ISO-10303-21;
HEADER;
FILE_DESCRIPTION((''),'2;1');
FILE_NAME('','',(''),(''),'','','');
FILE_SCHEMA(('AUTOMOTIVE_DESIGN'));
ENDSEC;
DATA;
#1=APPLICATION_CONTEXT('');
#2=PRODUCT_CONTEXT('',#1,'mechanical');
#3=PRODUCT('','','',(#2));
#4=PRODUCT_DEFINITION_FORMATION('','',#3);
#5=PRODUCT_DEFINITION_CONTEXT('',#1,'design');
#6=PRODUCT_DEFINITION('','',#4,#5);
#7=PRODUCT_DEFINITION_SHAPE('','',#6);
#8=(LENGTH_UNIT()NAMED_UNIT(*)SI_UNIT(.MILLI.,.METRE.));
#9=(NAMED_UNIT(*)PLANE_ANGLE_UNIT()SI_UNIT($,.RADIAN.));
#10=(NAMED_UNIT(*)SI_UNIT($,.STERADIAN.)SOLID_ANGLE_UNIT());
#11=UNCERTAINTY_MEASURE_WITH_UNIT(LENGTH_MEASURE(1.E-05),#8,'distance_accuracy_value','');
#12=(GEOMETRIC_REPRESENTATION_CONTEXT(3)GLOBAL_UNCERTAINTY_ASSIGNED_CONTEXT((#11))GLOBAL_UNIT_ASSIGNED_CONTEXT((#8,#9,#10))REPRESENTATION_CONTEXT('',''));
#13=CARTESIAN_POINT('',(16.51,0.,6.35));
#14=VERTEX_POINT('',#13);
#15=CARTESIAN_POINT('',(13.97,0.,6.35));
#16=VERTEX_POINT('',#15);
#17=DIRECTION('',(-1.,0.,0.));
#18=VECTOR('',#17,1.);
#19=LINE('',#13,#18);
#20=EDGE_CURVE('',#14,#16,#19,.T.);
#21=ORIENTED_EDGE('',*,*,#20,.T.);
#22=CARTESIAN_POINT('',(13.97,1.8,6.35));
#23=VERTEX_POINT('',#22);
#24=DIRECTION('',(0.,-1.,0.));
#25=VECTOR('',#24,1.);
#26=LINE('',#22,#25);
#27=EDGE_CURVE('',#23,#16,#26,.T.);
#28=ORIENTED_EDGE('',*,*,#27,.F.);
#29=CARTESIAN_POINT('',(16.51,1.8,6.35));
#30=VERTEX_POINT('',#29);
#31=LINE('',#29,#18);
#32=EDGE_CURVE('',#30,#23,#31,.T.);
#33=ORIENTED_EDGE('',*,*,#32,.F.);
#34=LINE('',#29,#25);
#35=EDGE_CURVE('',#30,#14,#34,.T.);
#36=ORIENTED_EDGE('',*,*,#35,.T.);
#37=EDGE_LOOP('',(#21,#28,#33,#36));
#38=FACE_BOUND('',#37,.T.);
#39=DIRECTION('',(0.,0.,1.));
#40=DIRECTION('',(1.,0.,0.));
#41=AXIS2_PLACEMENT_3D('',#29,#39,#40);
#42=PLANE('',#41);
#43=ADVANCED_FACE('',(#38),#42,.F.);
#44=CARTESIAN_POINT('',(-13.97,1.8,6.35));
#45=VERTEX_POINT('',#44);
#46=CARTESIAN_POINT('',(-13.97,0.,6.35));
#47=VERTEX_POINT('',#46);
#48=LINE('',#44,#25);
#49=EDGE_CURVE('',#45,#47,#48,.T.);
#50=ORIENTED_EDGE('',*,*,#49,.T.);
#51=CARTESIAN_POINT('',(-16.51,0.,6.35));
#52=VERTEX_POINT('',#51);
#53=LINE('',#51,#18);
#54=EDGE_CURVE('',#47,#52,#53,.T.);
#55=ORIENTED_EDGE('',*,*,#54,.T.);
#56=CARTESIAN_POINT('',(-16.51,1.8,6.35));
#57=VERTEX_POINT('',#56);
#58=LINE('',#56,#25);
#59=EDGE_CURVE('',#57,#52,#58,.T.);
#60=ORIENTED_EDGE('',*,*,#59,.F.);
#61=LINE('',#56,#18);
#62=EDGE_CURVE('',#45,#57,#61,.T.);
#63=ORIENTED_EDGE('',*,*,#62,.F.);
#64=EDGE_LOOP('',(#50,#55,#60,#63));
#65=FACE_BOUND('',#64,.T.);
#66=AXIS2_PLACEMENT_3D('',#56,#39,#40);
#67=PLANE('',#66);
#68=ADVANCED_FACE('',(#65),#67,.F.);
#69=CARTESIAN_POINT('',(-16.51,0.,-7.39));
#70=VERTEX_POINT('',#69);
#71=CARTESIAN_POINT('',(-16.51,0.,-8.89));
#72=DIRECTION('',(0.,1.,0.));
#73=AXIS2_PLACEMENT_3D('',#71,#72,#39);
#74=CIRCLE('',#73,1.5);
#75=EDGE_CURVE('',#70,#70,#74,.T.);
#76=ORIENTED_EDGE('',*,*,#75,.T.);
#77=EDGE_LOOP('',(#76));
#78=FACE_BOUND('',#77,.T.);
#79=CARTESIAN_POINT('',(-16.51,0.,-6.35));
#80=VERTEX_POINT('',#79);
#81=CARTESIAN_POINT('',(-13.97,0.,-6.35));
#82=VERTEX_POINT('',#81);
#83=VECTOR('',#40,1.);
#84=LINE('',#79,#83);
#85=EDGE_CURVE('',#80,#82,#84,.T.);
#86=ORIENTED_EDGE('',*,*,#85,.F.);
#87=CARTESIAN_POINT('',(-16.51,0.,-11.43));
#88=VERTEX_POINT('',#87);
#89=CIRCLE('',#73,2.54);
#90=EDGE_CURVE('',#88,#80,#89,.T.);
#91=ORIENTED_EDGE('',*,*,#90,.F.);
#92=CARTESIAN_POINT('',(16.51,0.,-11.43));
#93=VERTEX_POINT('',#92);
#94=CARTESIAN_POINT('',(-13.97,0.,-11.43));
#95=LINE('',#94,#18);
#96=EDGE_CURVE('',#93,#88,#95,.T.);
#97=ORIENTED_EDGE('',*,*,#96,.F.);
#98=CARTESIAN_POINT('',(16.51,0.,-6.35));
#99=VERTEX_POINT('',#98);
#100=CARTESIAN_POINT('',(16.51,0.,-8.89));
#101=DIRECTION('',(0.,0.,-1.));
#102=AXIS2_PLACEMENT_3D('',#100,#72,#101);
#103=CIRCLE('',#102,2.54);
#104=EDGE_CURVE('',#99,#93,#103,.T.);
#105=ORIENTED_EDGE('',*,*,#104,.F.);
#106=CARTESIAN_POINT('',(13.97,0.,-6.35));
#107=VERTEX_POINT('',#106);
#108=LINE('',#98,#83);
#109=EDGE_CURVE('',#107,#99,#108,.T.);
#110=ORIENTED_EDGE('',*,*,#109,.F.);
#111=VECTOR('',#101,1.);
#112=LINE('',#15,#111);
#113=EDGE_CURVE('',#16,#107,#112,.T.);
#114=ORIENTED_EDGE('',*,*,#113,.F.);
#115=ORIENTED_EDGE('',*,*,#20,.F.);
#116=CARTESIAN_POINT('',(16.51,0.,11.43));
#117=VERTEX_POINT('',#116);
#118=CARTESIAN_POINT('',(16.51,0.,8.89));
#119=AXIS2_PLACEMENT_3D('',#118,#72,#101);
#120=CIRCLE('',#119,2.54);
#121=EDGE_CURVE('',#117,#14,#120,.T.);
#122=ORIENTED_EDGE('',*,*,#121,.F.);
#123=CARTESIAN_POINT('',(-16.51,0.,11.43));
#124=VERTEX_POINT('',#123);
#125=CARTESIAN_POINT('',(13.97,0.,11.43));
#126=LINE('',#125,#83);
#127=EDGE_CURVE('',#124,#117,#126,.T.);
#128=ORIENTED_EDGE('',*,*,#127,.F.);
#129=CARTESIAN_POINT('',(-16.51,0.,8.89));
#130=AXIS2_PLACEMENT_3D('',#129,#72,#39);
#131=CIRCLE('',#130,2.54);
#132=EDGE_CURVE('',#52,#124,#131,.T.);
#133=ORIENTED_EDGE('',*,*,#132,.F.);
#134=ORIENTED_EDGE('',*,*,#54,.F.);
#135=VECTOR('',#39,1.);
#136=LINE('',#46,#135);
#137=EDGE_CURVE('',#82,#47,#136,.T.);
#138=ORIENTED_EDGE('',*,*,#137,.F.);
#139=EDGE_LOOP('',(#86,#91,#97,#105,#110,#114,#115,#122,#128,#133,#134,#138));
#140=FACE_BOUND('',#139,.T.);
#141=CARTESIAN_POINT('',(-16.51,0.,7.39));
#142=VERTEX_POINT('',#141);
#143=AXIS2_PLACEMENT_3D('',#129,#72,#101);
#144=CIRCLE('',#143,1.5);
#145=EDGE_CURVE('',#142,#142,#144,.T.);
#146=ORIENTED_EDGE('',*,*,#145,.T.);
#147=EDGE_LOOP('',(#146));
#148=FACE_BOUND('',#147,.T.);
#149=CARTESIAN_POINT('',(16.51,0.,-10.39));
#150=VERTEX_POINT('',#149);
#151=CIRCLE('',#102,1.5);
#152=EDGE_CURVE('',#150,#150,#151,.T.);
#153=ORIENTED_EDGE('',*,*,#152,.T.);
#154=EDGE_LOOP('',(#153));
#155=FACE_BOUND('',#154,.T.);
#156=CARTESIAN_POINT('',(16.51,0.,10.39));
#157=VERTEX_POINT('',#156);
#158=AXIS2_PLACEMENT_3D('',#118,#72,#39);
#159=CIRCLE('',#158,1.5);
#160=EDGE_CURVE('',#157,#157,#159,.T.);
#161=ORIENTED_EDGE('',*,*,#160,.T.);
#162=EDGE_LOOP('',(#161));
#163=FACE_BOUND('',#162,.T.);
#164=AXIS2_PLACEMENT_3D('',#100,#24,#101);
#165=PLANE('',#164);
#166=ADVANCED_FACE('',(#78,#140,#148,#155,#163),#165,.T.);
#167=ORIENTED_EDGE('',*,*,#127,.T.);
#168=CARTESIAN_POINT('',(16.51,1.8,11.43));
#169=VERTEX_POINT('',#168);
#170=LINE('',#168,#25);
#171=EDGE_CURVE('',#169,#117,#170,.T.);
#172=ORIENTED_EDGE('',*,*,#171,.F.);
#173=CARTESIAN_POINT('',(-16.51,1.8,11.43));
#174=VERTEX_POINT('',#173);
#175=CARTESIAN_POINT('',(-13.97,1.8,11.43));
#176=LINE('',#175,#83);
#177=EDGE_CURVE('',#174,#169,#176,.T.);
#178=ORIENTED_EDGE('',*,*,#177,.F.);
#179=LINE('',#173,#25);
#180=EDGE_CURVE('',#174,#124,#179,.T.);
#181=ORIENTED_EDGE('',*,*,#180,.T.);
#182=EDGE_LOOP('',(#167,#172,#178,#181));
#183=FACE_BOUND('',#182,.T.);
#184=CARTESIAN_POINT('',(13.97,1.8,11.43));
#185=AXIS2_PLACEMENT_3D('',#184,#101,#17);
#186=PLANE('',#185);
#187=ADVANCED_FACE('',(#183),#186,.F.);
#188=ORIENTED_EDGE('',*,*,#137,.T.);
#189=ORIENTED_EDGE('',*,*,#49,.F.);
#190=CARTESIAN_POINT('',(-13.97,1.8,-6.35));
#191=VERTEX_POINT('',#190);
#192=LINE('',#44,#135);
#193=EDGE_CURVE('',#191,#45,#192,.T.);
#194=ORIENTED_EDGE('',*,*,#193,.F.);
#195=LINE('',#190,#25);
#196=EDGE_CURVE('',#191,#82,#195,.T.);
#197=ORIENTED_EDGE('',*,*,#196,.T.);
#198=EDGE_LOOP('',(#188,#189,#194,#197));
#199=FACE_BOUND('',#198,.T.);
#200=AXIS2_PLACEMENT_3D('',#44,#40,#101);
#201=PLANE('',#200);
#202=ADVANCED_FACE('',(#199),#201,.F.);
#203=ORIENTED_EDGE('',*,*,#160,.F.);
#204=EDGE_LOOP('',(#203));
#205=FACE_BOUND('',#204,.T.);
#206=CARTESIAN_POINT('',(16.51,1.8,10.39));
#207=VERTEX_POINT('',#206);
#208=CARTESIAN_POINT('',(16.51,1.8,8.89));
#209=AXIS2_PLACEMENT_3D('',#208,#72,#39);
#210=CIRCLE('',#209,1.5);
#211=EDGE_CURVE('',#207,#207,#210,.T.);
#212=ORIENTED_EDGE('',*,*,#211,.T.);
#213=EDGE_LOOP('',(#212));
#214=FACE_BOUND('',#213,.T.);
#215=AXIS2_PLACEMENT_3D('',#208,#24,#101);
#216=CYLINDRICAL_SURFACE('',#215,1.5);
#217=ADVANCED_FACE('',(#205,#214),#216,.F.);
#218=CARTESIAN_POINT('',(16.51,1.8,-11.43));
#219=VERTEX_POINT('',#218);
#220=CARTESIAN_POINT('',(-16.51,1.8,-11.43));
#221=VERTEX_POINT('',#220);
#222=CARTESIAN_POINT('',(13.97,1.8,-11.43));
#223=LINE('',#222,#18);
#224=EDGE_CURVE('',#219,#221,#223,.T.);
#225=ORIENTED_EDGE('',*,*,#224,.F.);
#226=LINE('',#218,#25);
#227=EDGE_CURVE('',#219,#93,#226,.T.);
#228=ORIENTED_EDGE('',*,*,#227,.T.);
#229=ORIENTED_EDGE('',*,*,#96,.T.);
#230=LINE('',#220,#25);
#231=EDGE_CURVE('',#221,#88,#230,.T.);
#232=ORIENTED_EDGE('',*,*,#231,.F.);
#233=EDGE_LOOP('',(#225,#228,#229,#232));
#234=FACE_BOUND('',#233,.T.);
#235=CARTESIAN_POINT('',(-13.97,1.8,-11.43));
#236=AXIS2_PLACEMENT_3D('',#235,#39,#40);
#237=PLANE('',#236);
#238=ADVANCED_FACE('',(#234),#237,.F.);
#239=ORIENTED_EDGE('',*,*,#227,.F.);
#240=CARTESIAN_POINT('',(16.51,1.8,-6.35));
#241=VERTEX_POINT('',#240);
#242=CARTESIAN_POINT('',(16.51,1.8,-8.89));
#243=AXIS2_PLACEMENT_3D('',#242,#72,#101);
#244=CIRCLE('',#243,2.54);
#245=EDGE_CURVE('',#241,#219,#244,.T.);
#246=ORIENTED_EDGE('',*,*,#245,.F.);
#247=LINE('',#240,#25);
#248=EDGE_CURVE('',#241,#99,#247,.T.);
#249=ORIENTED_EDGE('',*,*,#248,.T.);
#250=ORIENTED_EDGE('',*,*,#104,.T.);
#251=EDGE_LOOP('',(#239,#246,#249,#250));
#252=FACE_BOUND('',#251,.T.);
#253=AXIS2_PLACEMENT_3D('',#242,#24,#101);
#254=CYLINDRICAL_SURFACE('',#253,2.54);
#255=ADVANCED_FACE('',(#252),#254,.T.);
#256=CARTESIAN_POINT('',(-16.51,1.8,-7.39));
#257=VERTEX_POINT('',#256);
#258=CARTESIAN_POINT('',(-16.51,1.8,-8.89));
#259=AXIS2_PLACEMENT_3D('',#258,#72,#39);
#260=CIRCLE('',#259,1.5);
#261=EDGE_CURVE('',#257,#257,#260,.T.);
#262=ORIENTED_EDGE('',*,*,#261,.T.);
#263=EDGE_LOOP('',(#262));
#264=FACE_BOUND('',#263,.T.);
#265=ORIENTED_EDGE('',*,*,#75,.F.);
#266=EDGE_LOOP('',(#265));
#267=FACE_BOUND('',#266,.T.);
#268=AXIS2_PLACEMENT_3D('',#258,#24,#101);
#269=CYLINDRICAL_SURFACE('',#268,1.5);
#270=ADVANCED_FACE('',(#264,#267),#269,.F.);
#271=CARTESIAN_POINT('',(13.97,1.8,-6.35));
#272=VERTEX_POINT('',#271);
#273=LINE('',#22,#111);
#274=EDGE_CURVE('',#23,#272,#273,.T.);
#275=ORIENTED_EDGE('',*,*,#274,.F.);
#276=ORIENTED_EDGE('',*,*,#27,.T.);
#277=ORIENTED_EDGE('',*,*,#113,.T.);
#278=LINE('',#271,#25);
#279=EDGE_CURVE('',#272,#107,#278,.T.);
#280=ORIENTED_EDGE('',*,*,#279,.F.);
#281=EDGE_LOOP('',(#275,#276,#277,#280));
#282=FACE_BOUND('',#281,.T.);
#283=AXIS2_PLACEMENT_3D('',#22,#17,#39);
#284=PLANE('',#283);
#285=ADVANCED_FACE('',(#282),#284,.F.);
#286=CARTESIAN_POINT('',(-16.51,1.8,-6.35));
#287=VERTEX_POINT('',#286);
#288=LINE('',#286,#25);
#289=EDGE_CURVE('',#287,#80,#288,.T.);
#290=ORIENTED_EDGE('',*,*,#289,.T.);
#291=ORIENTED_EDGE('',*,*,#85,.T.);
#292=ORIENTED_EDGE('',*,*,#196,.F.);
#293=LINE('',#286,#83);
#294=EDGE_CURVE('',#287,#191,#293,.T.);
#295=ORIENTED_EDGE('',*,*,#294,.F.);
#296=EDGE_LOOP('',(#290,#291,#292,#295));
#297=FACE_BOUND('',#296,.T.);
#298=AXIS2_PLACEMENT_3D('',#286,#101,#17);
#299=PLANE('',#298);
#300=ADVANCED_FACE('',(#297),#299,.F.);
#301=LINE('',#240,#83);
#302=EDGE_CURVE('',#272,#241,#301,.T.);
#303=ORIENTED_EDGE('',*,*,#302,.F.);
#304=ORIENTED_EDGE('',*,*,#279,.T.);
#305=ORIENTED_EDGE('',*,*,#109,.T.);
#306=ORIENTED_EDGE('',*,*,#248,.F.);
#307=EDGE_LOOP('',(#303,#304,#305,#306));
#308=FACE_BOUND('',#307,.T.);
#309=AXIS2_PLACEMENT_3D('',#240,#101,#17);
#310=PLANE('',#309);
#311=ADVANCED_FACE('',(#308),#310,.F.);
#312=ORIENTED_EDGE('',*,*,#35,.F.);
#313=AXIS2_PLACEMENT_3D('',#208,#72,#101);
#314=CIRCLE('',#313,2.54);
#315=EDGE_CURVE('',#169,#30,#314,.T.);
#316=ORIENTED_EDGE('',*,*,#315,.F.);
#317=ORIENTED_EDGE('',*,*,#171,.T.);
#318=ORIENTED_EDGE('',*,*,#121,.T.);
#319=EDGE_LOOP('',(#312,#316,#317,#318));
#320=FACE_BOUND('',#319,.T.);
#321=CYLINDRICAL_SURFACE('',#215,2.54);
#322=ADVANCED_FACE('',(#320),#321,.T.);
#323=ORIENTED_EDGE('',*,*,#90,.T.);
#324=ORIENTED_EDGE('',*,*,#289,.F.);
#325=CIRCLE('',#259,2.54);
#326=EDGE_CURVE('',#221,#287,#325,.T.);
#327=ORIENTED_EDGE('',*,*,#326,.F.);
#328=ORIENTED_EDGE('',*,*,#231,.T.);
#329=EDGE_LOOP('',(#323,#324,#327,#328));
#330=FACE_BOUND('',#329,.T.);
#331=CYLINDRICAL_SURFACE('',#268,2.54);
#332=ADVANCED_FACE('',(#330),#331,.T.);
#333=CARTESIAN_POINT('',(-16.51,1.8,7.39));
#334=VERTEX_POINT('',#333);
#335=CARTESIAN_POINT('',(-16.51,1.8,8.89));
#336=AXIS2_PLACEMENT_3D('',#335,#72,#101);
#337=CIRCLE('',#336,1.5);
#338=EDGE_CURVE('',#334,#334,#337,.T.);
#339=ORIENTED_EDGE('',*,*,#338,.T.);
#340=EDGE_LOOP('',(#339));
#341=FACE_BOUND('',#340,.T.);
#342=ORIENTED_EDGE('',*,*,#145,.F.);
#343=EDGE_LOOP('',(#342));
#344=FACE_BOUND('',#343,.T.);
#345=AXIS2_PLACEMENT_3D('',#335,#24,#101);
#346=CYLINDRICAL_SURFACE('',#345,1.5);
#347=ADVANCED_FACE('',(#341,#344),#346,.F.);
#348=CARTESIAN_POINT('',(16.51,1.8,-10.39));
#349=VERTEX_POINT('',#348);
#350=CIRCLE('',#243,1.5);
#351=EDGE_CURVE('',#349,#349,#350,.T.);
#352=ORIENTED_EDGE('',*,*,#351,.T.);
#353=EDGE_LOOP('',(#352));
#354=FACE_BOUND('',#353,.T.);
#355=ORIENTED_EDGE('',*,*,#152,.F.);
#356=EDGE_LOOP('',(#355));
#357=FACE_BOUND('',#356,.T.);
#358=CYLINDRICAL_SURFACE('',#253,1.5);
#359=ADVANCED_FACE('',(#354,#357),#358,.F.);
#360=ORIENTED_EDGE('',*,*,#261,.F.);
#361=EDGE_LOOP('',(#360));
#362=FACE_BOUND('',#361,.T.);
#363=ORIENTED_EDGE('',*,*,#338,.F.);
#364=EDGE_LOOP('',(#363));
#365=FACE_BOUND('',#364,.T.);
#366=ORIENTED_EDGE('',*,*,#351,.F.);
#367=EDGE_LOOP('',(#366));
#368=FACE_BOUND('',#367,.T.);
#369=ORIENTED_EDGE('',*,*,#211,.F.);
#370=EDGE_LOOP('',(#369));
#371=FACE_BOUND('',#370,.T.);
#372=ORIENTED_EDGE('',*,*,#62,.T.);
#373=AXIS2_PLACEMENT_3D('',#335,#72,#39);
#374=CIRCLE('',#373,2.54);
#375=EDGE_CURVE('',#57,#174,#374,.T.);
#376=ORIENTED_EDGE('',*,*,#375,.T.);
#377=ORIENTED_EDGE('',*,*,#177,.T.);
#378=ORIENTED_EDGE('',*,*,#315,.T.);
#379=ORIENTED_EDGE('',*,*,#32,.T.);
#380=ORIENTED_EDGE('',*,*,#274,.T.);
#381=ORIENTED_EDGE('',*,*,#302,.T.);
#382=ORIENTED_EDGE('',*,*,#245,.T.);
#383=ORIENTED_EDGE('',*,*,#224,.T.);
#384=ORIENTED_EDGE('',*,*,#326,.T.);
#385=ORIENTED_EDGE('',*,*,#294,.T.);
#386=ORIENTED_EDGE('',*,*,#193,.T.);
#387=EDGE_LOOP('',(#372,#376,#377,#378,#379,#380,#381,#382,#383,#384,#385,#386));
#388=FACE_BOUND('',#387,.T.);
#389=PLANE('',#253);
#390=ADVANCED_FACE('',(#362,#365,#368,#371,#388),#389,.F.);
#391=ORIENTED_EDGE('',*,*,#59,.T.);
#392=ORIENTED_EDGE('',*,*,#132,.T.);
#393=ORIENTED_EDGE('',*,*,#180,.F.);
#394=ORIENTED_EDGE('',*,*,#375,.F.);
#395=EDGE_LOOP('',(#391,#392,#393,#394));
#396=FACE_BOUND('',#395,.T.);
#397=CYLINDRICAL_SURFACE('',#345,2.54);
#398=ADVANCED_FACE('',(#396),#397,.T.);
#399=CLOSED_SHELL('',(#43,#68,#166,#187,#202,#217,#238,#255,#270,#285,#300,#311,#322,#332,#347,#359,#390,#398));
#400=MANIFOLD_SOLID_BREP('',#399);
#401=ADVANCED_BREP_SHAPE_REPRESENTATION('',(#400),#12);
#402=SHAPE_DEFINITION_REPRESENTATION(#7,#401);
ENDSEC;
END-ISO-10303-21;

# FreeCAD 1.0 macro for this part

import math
import FreeCAD as App
import Part
import Sketcher
from FreeCAD import Vector
Q = App.Units.Quantity

doc = App.newDocument("Part")
body = doc.addObject("PartDesign::Body", "Body")

# Sketch on XZ plane
sketch1 = doc.addObject("Sketcher::SketchObject", "Sketch")
body.addObject(sketch1)
sketch1.AttachmentSupport = (doc.XZ_Plane, [""])
sketch1.MapMode = "FlatFace"
sketch1.addGeometry(Part.ArcOfCircle(Part.Circle(Vector(-16.5, -8.9, 0), Vector(0, 0, 1), 2.5), math.radians(90), math.radians(270)), False)
sketch1.addGeometry(Part.LineSegment(Vector(-16.5, -6.3, 0), Vector(-14, -6.3, 0)), False)
sketch1.addGeometry(Part.LineSegment(Vector(-14, -6.3, 0), Vector(-14, 6.3, 0)), False)
sketch1.addGeometry(Part.LineSegment(Vector(-14, 6.3, 0), Vector(-16.5, 6.3, 0)), False)
sketch1.addGeometry(Part.ArcOfCircle(Part.Circle(Vector(-16.5, 8.9, 0), Vector(0, 0, 1), 2.5), math.radians(90), math.radians(270)), False)
sketch1.addGeometry(Part.LineSegment(Vector(-16.5, 11.4, 0), Vector(16.5, 11.4, 0)), False)
sketch1.addGeometry(Part.ArcOfCircle(Part.Circle(Vector(16.5, 8.9, 0), Vector(0, 0, 1), 2.5), math.radians(-90), math.radians(90)), False)
sketch1.addGeometry(Part.LineSegment(Vector(16.5, 6.3, 0), Vector(14, 6.3, 0)), False)
sketch1.addGeometry(Part.LineSegment(Vector(14, 6.3, 0), Vector(14, -6.3, 0)), False)
sketch1.addGeometry(Part.LineSegment(Vector(14, -6.3, 0), Vector(16.5, -6.3, 0)), False)
sketch1.addGeometry(Part.ArcOfCircle(Part.Circle(Vector(16.5, -8.9, 0), Vector(0, 0, 1), 2.5), math.radians(-90), math.radians(90)), False)
sketch1.addGeometry(Part.LineSegment(Vector(16.5, -11.4, 0), Vector(-16.5, -11.4, 0)), False)
sketch1.addGeometry(Part.Circle(Vector(-16.5, 8.9, 0), Vector(0, 0, 1), 1.5), False)
sketch1.addGeometry(Part.Circle(Vector(16.5, 8.9, 0), Vector(0, 0, 1), 1.5), False)
sketch1.addGeometry(Part.Circle(Vector(-16.5, -8.9, 0), Vector(0, 0, 1), 1.5), False)
sketch1.addGeometry(Part.Circle(Vector(16.5, -8.9, 0), Vector(0, 0, 1), 1.5), False)
sketch1.addConstraint(Sketcher.Constraint("Tangent", 0, 1, 1, 1))
sketch1.addConstraint(Sketcher.Constraint("Coincident", 1, 2, 2, 1))
sketch1.addConstraint(Sketcher.Constraint("Coincident", 2, 2, 3, 1))
sketch1.addConstraint(Sketcher.Constraint("Tangent", 3, 2, 4, 2))
sketch1.addConstraint(Sketcher.Constraint("Tangent", 4, 1, 5, 1))
sketch1.addConstraint(Sketcher.Constraint("Tangent", 5, 2, 6, 2))
sketch1.addConstraint(Sketcher.Constraint("Tangent", 6, 1, 7, 1))
sketch1.addConstraint(Sketcher.Constraint("Coincident", 7, 2, 8, 1))
sketch1.addConstraint(Sketcher.Constraint("Coincident", 8, 2, 9, 1))
sketch1.addConstraint(Sketcher.Constraint("Tangent", 9, 2, 10, 2))
sketch1.addConstraint(Sketcher.Constraint("Tangent", 10, 1, 11, 1))
sketch1.addConstraint(Sketcher.Constraint("Tangent", 11, 2, 0, 2))
sketch1.addConstraint(Sketcher.Constraint("Horizontal", 1))
sketch1.addConstraint(Sketcher.Constraint("Vertical", 2))
sketch1.addConstraint(Sketcher.Constraint("Horizontal", 3))
sketch1.addConstraint(Sketcher.Constraint("Horizontal", 5))
sketch1.addConstraint(Sketcher.Constraint("Horizontal", 7))
sketch1.addConstraint(Sketcher.Constraint("Vertical", 8))
sketch1.addConstraint(Sketcher.Constraint("Horizontal", 9))
sketch1.addConstraint(Sketcher.Constraint("Horizontal", 11))
sketch1.addConstraint(Sketcher.Constraint("Coincident", 12, 3, 4, 3))
sketch1.addConstraint(Sketcher.Constraint("Coincident", 13, 3, 6, 3))
sketch1.addConstraint(Sketcher.Constraint("Coincident", 14, 3, 0, 3))
sketch1.addConstraint(Sketcher.Constraint("Coincident", 15, 3, 10, 3))
sketch1.addConstraint(Sketcher.Constraint("Equal", 0, 4))
sketch1.addConstraint(Sketcher.Constraint("Equal", 4, 6))
sketch1.addConstraint(Sketcher.Constraint("Equal", 6, 10))
sketch1.addConstraint(Sketcher.Constraint("Equal", 12, 13))
sketch1.addConstraint(Sketcher.Constraint("Equal", 13, 14))
sketch1.addConstraint(Sketcher.Constraint("Equal", 14, 15))
sketch1.addConstraint(Sketcher.Constraint("Symmetric", 0, 3, 6, 3, -1, 1))
sketch1.addConstraint(Sketcher.Constraint("Vertical", 0, 3, 4, 3))
sketch1.addConstraint(Sketcher.Constraint("Vertical", 6, 3, 10, 3))
sketch1.addConstraint(Sketcher.Constraint("Equal", 3, 7))
sketch1.addConstraint(Sketcher.Constraint("Radius", 0, Q("0.1 in")))
sketch1.addConstraint(Sketcher.Constraint("DistanceX", 1, 1, 1, 2, Q("0.1 in")))
sketch1.addConstraint(Sketcher.Constraint("DistanceX", 5, 1, 5, 2, Q("1.3 in")))
sketch1.addConstraint(Sketcher.Constraint("DistanceY", 2, 1, 2, 2, Q("0.5 in")))
sketch1.addConstraint(Sketcher.Constraint("Diameter", 12, 3.0))
pad1 = doc.addObject("PartDesign::Pad", "Pad")
body.addObject(pad1)
pad1.Profile = sketch1
pad1.Length = 1.8
pad1.Reversed = True

doc.recompute()
